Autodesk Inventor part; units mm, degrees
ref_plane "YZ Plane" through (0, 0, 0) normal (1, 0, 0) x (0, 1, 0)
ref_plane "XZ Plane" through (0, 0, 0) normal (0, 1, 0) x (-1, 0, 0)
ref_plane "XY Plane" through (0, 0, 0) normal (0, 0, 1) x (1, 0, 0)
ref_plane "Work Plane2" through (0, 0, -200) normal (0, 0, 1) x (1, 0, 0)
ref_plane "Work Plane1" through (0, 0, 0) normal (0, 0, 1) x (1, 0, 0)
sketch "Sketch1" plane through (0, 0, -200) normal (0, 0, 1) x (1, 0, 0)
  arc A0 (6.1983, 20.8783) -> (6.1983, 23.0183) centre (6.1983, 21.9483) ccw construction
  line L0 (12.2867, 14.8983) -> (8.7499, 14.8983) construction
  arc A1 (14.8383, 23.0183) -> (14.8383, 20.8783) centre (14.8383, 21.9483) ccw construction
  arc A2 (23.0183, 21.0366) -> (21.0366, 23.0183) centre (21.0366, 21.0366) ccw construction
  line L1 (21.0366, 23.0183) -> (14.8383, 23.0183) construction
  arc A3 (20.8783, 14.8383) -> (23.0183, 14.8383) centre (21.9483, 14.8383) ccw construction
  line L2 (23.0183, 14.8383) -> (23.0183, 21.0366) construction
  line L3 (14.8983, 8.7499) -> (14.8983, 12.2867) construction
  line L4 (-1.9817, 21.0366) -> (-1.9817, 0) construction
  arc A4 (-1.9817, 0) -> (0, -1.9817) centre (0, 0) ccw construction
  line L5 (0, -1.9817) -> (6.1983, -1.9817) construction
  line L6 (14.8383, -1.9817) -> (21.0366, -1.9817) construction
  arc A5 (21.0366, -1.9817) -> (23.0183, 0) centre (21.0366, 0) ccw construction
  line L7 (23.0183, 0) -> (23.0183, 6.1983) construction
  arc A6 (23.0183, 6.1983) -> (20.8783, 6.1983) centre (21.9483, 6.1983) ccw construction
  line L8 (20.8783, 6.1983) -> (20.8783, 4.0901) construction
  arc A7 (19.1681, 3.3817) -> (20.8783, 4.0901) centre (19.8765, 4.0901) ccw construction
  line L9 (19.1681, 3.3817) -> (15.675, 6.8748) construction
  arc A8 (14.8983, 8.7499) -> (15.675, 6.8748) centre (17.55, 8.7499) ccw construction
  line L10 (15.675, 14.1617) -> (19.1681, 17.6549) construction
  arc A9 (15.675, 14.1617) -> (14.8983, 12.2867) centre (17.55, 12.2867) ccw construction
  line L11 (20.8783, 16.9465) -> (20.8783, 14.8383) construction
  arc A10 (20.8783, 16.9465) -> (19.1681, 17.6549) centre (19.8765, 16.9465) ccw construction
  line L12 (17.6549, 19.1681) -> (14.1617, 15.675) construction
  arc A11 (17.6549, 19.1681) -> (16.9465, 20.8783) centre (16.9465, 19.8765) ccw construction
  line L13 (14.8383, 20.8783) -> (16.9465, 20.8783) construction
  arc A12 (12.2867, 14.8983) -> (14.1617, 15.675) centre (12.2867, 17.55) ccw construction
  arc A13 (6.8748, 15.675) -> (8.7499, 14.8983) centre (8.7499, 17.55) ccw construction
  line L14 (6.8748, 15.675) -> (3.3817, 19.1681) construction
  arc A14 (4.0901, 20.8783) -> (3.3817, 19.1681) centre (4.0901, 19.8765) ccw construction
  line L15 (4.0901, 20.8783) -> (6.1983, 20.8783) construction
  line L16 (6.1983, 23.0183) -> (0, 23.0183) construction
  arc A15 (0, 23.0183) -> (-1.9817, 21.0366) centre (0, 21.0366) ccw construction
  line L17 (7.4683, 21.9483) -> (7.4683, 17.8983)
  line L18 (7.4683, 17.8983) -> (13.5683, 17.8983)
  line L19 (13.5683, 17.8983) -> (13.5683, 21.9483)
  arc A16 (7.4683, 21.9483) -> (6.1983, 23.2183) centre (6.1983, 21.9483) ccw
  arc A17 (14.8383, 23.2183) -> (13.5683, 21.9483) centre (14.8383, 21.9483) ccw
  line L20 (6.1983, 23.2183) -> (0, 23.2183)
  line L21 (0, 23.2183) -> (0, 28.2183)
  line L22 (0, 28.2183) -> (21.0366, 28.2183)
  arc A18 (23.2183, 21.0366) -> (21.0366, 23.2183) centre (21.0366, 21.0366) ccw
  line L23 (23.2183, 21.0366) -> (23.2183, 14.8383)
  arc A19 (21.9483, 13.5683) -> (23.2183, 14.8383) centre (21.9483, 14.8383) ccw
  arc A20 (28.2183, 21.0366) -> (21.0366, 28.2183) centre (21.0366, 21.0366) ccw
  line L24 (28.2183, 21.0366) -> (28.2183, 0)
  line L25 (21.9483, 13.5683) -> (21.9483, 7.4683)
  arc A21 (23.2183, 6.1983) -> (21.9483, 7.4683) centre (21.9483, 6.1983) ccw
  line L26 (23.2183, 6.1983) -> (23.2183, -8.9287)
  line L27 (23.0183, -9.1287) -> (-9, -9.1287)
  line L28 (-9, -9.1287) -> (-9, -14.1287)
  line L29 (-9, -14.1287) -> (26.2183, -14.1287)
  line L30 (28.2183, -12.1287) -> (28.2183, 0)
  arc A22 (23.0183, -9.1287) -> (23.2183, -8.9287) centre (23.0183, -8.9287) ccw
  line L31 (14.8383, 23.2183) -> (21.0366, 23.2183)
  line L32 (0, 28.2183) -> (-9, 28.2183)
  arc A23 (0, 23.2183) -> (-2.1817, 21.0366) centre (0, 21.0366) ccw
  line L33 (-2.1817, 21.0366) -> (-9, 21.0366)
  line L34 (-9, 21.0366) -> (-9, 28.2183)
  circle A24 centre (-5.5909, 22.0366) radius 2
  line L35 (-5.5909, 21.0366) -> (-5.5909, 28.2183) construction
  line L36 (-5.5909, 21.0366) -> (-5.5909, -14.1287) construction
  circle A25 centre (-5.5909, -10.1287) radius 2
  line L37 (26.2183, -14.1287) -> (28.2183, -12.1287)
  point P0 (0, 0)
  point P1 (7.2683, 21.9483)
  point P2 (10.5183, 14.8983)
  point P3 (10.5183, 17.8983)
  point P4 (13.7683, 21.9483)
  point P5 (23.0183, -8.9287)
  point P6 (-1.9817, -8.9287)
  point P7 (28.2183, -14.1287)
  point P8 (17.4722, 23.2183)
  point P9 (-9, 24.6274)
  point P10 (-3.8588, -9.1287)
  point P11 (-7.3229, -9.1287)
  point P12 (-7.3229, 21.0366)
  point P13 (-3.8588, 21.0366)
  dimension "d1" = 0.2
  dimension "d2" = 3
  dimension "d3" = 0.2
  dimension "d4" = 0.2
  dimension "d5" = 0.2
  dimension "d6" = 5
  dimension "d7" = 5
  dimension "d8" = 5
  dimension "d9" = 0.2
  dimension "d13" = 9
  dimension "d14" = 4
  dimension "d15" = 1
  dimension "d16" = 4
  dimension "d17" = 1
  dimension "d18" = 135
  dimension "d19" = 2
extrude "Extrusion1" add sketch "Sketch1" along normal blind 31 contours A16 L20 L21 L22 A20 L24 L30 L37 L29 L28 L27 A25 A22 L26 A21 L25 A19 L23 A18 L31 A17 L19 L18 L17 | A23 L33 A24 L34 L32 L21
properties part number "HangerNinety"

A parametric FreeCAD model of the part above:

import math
import FreeCAD as App
import Part
import Sketcher
from FreeCAD import Vector

doc = App.newDocument("Part")
body = doc.addObject("PartDesign::Body", "Body")

# Sketch on XY plane
sketch1 = body.newObject("Sketcher::SketchObject", "Sketch")
sketch1.AttachmentSupport = (doc.getObject("XY_Plane"), [""])
sketch1.MapMode = "FlatFace"
sketch1.AttachmentOffset = App.Placement(Vector(0, 0, -200), App.Rotation())
sketch1.addGeometry([
    Part.ArcOfCircle(Part.Circle(Vector(6.2, 21.95, 0), Vector(0, 0, 1), 1.27), math.radians(0), math.radians(90)),  # 0
    Part.LineSegment(Vector(7.47, 21.95, 0), Vector(7.47, 17.9, 0)),  # 1
    Part.LineSegment(Vector(7.47, 17.9, 0), Vector(13.57, 17.9, 0)),  # 2
    Part.LineSegment(Vector(13.57, 17.9, 0), Vector(13.57, 21.95, 0)),  # 3
    Part.ArcOfCircle(Part.Circle(Vector(14.84, 21.95, 0), Vector(0, 0, 1), 1.27), math.radians(90), math.radians(180)),  # 4
    Part.LineSegment(Vector(14.84, 23.22, 0), Vector(21.04, 23.22, 0)),  # 5
    Part.ArcOfCircle(Part.Circle(Vector(21.04, 21.04, 0), Vector(0, 0, 1), 2.18), math.radians(0), math.radians(90)),  # 6
    Part.LineSegment(Vector(23.22, 21.04, 0), Vector(23.22, 14.84, 0)),  # 7
    Part.ArcOfCircle(Part.Circle(Vector(21.95, 14.84, 0), Vector(0, 0, 1), 1.27), math.radians(-90), math.radians(0)),  # 8
    Part.LineSegment(Vector(21.95, 13.57, 0), Vector(21.95, 7.47, 0)),  # 9
    Part.ArcOfCircle(Part.Circle(Vector(21.95, 6.2, 0), Vector(0, 0, 1), 1.27), math.radians(0), math.radians(90)),  # 10
    Part.LineSegment(Vector(23.22, 6.2, 0), Vector(23.22, -8.93, 0)),  # 11
    Part.ArcOfCircle(Part.Circle(Vector(23.02, -8.93, 0), Vector(0, 0, 1), 0.2), math.radians(-90), math.radians(0)),  # 12
    Part.LineSegment(Vector(23.02, -9.13, 0), Vector(-3.86, -9.13, 0)),  # 13
    Part.ArcOfCircle(Part.Circle(Vector(-5.59, -10.13, 0), Vector(0, 0, 1), 2), math.radians(150), math.radians(390)),  # 14
    Part.LineSegment(Vector(-7.32, -9.13, 0), Vector(-9, -9.13, 0)),  # 15
    Part.LineSegment(Vector(-9, -9.13, 0), Vector(-9, -14.13, 0)),  # 16
    Part.LineSegment(Vector(-9, -14.13, 0), Vector(26.22, -14.13, 0)),  # 17
    Part.LineSegment(Vector(26.22, -14.13, 0), Vector(28.22, -12.13, 0)),  # 18
    Part.LineSegment(Vector(28.22, -12.13, 0), Vector(28.22, 21.04, 0)),  # 19
    Part.ArcOfCircle(Part.Circle(Vector(21.04, 21.04, 0), Vector(0, 0, 1), 7.18), math.radians(0), math.radians(90)),  # 20
    Part.LineSegment(Vector(21.04, 28.22, 0), Vector(-9, 28.22, 0)),  # 21
    Part.LineSegment(Vector(-9, 28.22, 0), Vector(-9, 21.04, 0)),  # 22
    Part.LineSegment(Vector(-9, 21.04, 0), Vector(-7.32, 21.04, 0)),  # 23
    Part.ArcOfCircle(Part.Circle(Vector(-5.59, 22.04, 0), Vector(0, 0, 1), 2), math.radians(-30), math.radians(210)),  # 24
    Part.LineSegment(Vector(-3.86, 21.04, 0), Vector(-2.18, 21.04, 0)),  # 25
    Part.ArcOfCircle(Part.Circle(Vector(0, 21.04, 0), Vector(0, 0, 1), 2.18), math.radians(90), math.radians(180)),  # 26
    Part.LineSegment(Vector(0, 23.22, 0), Vector(6.2, 23.22, 0)),  # 27
], False)
sketch1.addConstraint([
    Sketcher.Constraint("Tangent", 0, 1, 1, 1),
    Sketcher.Constraint("Coincident", 1, 2, 2, 1),
    Sketcher.Constraint("Coincident", 2, 2, 3, 1),
    Sketcher.Constraint("Tangent", 3, 2, 4, 2),
    Sketcher.Constraint("Tangent", 4, 1, 5, 1),
    Sketcher.Constraint("Tangent", 5, 2, 6, 2),
    Sketcher.Constraint("Tangent", 6, 1, 7, 1),
    Sketcher.Constraint("Tangent", 7, 2, 8, 2),
    Sketcher.Constraint("Coincident", 8, 1, 9, 1),
    Sketcher.Constraint("Coincident", 9, 2, 10, 2),
    Sketcher.Constraint("Tangent", 10, 1, 11, 1),
    Sketcher.Constraint("Tangent", 11, 2, 12, 2),
    Sketcher.Constraint("Tangent", 12, 1, 13, 1),
    Sketcher.Constraint("Coincident", 13, 2, 14, 2),
    Sketcher.Constraint("Coincident", 14, 1, 15, 1),
    Sketcher.Constraint("Coincident", 15, 2, 16, 1),
    Sketcher.Constraint("Coincident", 16, 2, 17, 1),
    Sketcher.Constraint("Coincident", 17, 2, 18, 1),
    Sketcher.Constraint("Coincident", 18, 2, 19, 1),
    Sketcher.Constraint("Tangent", 19, 2, 20, 1),
    Sketcher.Constraint("Tangent", 20, 2, 21, 1),
    Sketcher.Constraint("Coincident", 21, 2, 22, 1),
    Sketcher.Constraint("Coincident", 22, 2, 23, 1),
    Sketcher.Constraint("Coincident", 23, 2, 24, 2),
    Sketcher.Constraint("Coincident", 24, 1, 25, 1),
    Sketcher.Constraint("Coincident", 25, 2, 26, 2),
    Sketcher.Constraint("Tangent", 26, 1, 27, 1),
    Sketcher.Constraint("Tangent", 27, 2, 0, 2),
    Sketcher.Constraint("Vertical", 1),
    Sketcher.Constraint("Horizontal", 2),
    Sketcher.Constraint("Vertical", 3),
    Sketcher.Constraint("Horizontal", 5),
    Sketcher.Constraint("Vertical", 7),
    Sketcher.Constraint("Vertical", 9),
    Sketcher.Constraint("Vertical", 11),
    Sketcher.Constraint("Horizontal", 13),
    Sketcher.Constraint("Horizontal", 15),
    Sketcher.Constraint("Vertical", 16),
    Sketcher.Constraint("Horizontal", 17),
    Sketcher.Constraint("Vertical", 19),
    Sketcher.Constraint("Horizontal", 21),
    Sketcher.Constraint("Vertical", 22),
    Sketcher.Constraint("Horizontal", 23),
    Sketcher.Constraint("Horizontal", 25),
    Sketcher.Constraint("Horizontal", 27),
    Sketcher.Constraint("Coincident", 20, 3, 6, 3),
    Sketcher.Constraint("Equal", 0, 4),
    Sketcher.Constraint("Equal", 4, 8),
    Sketcher.Constraint("Equal", 8, 10),
    Sketcher.Constraint("Equal", 14, 24),
    Sketcher.Constraint("Equal", 6, 26),
    Sketcher.Constraint("PointOnObject", 26, 3, -2),
    Sketcher.Constraint("Horizontal", 0, 3, 4, 3),
    Sketcher.Constraint("Horizontal", 13, 2, 14, 1),
    Sketcher.Constraint("Horizontal", 19, 2, 22, 2),
    Sketcher.Constraint("Horizontal", 23, 2, 24, 1),
    Sketcher.Constraint("Vertical", 8, 3, 10, 3),
    Sketcher.Constraint("Vertical", 14, 3, 24, 3),
    Sketcher.Constraint("Vertical", 10, 3, 8, 1),
    Sketcher.Constraint("Vertical", 16, 2, 21, 2),
    Sketcher.Constraint("Vertical", 14, 1, 23, 2),
    Sketcher.Constraint("Equal", 23, 25),
    Sketcher.Constraint("Equal", 5, 27),
    Sketcher.Constraint("Equal", 27, 7),
    Sketcher.Constraint("Equal", 2, 9),
    Sketcher.Constraint("Radius", 14, 2.0),
    Sketcher.Constraint("Radius", 12, 0.2),
    Sketcher.Constraint("DistanceY", 16, 2, 16, 1, 5.0),
    Sketcher.Constraint("DistanceX", 15, 2, -1, 1, 9.0),
    Sketcher.Constraint("DistanceY", 6, 3, 24, 3, 1.0),
    Sketcher.Constraint("DistanceX", 11, 2, 17, 2, 3.0),
    Sketcher.Constraint("DistanceX", 17, 2, 18, 2, 2.0),
    Sketcher.Constraint("DistanceY", 17, 2, 18, 2, 2.0),
    Sketcher.Constraint("Radius", 0, 1.27),
    Sketcher.Constraint("DistanceX", 2, 1, 2, 2, 6.1),
    Sketcher.Constraint("DistanceY", 1, 2, 1, 1, 4.05),
    Sketcher.Constraint("Radius", 6, 2.1817),
    Sketcher.Constraint("DistanceY", 11, 2, 11, 1, 15.127),
    Sketcher.Constraint("DistanceX", 4, 3, 8, 3, 7.11),
    Sketcher.Constraint("DistanceY", -1, 1, 0, 3, 21.9483),
])
pad1 = body.newObject("PartDesign::Pad", "Pad")
pad1.Profile = sketch1
pad1.Length = 31

doc.recompute()
